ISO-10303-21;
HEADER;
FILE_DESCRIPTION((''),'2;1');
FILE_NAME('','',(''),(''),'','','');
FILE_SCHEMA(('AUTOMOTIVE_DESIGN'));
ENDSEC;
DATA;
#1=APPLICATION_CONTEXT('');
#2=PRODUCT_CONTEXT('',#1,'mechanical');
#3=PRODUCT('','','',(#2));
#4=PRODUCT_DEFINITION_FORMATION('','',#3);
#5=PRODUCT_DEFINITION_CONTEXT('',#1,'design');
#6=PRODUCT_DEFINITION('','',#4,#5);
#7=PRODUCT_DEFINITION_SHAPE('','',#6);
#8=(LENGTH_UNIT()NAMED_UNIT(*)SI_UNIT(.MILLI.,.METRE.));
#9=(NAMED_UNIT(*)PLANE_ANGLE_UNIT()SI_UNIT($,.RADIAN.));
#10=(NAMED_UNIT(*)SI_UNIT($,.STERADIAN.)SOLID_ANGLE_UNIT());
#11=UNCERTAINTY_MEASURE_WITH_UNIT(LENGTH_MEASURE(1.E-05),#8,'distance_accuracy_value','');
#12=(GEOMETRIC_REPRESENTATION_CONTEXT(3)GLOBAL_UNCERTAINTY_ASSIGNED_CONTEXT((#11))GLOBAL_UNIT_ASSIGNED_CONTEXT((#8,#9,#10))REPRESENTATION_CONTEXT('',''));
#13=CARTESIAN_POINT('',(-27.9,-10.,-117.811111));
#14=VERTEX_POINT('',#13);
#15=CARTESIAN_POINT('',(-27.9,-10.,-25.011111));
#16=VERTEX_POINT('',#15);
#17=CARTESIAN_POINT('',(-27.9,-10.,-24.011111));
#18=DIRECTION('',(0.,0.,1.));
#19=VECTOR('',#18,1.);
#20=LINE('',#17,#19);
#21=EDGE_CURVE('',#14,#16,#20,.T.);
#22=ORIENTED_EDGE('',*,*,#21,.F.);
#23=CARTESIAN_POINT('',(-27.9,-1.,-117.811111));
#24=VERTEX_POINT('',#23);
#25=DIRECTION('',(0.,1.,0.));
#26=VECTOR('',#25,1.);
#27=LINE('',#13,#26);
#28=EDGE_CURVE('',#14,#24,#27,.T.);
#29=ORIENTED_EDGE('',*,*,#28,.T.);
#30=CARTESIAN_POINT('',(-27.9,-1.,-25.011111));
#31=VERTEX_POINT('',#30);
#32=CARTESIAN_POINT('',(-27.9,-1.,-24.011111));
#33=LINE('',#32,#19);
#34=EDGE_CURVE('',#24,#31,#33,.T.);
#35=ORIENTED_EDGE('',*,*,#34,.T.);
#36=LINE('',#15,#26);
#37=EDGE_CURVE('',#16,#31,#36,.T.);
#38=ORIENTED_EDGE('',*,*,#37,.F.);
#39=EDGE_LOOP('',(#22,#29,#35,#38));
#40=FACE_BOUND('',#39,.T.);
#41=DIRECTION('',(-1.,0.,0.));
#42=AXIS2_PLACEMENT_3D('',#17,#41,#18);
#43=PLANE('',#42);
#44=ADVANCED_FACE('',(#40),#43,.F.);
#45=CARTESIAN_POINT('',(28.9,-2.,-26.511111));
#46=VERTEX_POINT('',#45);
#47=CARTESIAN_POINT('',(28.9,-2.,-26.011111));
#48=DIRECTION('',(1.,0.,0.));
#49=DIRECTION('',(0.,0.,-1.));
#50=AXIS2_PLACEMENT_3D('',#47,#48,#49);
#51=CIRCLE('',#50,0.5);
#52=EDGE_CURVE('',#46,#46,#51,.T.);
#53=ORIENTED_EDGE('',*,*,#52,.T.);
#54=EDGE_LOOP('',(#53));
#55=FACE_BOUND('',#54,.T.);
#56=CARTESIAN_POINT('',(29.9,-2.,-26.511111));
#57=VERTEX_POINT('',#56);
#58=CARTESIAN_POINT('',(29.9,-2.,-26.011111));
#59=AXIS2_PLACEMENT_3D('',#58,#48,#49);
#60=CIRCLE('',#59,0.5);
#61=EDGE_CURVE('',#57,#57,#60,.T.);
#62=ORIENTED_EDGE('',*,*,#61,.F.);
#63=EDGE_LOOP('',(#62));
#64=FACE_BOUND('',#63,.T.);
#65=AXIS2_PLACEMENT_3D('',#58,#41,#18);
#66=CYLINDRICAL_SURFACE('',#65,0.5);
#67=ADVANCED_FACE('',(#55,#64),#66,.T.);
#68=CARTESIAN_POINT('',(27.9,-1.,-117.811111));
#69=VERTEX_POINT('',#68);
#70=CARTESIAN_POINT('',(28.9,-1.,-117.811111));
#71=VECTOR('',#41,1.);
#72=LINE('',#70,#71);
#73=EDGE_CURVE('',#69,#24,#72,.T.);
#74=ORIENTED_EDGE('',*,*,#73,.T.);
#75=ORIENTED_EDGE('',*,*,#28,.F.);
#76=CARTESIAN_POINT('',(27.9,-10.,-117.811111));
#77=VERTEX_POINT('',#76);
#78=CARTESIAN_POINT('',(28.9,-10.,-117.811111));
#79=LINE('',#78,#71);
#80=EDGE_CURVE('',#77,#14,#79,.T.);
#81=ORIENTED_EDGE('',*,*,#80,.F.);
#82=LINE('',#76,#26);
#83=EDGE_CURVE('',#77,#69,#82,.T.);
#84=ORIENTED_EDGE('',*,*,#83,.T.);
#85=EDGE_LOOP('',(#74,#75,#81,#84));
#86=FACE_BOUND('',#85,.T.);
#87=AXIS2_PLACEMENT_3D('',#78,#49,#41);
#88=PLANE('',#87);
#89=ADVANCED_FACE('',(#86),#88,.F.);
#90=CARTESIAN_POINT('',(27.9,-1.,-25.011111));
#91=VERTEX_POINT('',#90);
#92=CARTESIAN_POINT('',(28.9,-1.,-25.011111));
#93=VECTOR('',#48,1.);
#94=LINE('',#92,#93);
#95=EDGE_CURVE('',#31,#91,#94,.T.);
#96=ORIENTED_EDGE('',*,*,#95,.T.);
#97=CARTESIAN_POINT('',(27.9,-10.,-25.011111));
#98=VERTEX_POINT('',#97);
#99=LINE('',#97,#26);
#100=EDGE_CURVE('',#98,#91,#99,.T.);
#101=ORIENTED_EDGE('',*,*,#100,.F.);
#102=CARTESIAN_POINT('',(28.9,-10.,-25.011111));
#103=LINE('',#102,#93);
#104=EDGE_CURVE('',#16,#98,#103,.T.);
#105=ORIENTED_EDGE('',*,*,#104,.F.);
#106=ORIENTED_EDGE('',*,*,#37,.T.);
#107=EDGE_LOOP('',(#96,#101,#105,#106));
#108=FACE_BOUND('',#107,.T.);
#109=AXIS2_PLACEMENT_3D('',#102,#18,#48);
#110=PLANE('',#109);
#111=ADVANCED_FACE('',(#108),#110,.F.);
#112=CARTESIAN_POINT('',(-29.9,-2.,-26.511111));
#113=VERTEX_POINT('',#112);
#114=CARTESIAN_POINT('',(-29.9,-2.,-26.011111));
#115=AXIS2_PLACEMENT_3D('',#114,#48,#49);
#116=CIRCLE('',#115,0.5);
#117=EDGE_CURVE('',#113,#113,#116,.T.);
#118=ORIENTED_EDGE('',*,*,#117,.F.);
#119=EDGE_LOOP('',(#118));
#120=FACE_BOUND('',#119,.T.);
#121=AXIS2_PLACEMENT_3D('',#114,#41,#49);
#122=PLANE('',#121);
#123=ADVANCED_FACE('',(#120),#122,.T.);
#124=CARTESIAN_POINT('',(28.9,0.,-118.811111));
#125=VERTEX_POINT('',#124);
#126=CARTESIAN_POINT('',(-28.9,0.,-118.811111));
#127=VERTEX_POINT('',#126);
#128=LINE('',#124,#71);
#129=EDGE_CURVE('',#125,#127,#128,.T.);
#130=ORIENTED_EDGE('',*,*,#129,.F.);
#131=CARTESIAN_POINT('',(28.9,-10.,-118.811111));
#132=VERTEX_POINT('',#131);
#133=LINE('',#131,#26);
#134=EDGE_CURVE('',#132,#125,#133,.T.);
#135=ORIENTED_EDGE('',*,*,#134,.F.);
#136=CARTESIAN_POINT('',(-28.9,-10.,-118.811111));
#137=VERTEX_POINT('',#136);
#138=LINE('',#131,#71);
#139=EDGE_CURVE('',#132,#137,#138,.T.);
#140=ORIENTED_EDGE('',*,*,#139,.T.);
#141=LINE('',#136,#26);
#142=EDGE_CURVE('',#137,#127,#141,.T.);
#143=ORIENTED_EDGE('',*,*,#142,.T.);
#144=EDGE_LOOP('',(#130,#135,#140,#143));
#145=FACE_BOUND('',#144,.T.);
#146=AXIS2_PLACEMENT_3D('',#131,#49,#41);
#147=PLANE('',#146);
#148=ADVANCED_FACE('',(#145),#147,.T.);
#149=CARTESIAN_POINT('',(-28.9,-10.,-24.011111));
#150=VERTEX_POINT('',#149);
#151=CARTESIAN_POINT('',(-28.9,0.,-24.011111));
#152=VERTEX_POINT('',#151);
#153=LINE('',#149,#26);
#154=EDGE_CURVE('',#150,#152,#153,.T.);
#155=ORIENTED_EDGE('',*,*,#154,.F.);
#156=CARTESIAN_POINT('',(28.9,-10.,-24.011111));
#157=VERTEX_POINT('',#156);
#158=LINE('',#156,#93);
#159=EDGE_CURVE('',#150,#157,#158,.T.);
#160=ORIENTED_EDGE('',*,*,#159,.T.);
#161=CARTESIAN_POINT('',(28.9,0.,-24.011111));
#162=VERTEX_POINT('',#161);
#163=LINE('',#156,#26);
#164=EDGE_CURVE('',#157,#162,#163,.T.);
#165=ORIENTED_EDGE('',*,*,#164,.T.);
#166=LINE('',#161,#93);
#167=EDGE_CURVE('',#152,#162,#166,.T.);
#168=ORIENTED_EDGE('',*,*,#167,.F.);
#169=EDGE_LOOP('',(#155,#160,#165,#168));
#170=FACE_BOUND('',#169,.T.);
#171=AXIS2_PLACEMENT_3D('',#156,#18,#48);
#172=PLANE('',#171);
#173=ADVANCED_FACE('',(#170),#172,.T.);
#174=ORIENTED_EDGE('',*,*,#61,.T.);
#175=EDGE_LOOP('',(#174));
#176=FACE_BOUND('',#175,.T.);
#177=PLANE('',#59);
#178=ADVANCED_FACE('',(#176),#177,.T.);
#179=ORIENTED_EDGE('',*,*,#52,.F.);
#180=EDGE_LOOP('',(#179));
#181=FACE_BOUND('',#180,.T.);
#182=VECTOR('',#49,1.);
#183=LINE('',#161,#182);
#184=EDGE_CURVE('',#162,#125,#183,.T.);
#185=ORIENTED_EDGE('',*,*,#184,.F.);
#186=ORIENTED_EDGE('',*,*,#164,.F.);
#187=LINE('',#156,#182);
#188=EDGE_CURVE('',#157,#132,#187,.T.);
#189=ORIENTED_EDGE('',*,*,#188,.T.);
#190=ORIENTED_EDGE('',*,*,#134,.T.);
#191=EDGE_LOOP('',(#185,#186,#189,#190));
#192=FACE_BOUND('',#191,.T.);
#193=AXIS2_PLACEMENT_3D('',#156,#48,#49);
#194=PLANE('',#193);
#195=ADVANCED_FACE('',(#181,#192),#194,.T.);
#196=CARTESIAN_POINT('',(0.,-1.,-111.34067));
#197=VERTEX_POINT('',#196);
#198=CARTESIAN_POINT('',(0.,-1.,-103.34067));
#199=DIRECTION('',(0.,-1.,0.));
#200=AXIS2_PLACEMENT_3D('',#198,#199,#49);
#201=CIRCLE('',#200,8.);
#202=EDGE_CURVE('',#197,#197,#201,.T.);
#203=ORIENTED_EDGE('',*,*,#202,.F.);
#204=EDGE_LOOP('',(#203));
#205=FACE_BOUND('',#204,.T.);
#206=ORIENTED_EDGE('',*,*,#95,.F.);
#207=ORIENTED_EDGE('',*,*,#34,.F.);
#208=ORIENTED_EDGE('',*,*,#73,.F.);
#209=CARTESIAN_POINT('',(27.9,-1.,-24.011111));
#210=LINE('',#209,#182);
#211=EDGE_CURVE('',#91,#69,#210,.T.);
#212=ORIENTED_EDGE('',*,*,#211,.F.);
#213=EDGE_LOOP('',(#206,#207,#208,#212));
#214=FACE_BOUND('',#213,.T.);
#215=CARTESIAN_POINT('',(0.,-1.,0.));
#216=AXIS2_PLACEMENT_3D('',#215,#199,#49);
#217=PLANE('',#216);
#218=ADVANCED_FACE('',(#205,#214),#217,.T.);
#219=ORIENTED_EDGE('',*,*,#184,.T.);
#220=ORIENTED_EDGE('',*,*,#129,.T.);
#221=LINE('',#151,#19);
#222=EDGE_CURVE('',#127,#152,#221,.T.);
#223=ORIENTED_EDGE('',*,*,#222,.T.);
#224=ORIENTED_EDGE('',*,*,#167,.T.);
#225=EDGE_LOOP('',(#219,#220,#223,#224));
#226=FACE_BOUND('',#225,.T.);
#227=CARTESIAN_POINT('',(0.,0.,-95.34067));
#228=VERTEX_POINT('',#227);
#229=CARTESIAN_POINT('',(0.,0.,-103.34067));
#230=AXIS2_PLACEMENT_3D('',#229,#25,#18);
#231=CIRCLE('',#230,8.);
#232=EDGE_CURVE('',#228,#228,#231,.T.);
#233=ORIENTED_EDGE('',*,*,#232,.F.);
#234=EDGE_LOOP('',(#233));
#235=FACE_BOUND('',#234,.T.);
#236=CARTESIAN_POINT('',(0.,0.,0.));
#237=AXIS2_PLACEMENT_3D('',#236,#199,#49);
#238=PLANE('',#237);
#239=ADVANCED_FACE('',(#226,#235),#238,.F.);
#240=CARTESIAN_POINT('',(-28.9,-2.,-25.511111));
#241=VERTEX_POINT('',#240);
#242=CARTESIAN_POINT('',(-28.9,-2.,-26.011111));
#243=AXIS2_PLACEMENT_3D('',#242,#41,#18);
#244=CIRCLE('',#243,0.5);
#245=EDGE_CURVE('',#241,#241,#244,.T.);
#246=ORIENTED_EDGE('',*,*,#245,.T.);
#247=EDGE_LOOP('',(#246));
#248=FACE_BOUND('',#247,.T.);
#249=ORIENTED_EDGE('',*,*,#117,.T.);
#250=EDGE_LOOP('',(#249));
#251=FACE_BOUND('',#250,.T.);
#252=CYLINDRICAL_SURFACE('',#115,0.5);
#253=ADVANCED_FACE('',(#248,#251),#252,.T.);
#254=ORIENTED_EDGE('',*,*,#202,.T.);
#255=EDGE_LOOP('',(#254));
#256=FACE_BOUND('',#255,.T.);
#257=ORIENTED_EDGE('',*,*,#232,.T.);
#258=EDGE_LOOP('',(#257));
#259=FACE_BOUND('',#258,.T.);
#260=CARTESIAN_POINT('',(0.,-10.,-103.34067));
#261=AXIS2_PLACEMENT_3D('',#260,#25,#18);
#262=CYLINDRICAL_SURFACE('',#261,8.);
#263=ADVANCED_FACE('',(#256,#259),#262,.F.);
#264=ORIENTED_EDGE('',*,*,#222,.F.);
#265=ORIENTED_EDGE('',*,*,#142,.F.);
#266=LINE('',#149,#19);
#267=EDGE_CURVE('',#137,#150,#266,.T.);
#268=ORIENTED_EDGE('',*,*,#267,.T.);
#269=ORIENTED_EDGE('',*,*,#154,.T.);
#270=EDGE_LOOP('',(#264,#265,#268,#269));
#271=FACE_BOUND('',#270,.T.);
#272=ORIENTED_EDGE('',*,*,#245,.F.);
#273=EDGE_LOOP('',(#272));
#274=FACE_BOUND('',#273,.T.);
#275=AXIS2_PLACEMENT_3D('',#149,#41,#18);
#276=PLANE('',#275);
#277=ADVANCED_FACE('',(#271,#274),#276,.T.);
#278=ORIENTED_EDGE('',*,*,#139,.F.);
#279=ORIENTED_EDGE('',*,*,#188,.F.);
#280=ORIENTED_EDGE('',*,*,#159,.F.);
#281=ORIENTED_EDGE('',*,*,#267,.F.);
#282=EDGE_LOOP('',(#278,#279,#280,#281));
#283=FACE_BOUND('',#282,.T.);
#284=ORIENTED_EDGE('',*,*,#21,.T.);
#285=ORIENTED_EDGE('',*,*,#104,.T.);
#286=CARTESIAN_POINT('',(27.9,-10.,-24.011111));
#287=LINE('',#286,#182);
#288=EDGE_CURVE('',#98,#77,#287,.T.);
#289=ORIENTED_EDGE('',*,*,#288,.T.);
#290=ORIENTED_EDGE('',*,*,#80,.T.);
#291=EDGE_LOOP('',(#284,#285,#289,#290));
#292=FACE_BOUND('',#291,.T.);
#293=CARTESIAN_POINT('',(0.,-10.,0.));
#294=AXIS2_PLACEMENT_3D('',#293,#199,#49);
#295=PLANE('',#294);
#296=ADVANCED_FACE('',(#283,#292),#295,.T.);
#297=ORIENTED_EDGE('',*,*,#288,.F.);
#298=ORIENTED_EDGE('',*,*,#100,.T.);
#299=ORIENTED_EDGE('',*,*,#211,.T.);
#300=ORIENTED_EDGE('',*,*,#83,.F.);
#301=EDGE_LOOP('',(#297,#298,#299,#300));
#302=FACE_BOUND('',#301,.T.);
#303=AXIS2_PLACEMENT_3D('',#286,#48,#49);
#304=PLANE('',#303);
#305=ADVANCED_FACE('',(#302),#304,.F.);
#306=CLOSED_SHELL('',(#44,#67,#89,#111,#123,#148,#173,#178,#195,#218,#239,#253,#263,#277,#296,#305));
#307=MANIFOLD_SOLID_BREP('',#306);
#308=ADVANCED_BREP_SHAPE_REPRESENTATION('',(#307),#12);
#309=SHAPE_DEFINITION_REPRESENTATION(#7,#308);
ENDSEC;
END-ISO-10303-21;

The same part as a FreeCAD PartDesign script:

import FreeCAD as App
import Part
import Sketcher
from FreeCAD import Vector
Q = App.Units.Quantity


def faces_at(feature, points):
    """Names of the faces that lie closest to the given points."""
    faces = feature.Shape.Faces
    near = lambda p: min(range(len(faces)), key=lambda i: faces[i].distToShape(Part.Vertex(*p))[0])
    return sorted({f"Face{near(p) + 1}" for p in points})

doc = App.newDocument("Part")
params = doc.addObject("Spreadsheet::Sheet", "Params")
for row, (alias, value) in enumerate([
    ("sketch1_width", "57.8 mm"),
    ("sketch1_height", "94.8 mm"),
    ("pad1_length", "10 mm"),
    ("thickness_wall", "1 mm"),
    ("sketch2_diameter", "16 mm"),
    ("sketch3_diameter", "1 mm"),
    ("pad2_length", "1 mm"),
], start=1):
    params.set(f"A{row}", alias)
    params.set(f"B{row}", "=" + value)
    params.setAlias(f"B{row}", alias)

body = doc.addObject("PartDesign::Body", "Body")

sketch1 = doc.addObject("Sketcher::SketchObject", "Sketch")
body.addObject(sketch1)
sketch1.AttachmentSupport = (doc.XZ_Plane, [""])
sketch1.MapMode = "FlatFace"
sketch1.addGeometry(Part.LineSegment(Vector(-29, -119, 0), Vector(-29, -24, 0)), False)
sketch1.addGeometry(Part.LineSegment(Vector(-29, -24, 0), Vector(29, -24, 0)), False)
sketch1.addGeometry(Part.LineSegment(Vector(29, -24, 0), Vector(29, -119, 0)), False)
sketch1.addGeometry(Part.LineSegment(Vector(29, -119, 0), Vector(-29, -119, 0)), False)
sketch1.addConstraint(Sketcher.Constraint("Coincident", 0, 2, 1, 1))
sketch1.addConstraint(Sketcher.Constraint("Coincident", 1, 2, 2, 1))
sketch1.addConstraint(Sketcher.Constraint("Coincident", 2, 2, 3, 1))
sketch1.addConstraint(Sketcher.Constraint("Coincident", 3, 2, 0, 1))
sketch1.addConstraint(Sketcher.Constraint("Vertical", 0))
sketch1.addConstraint(Sketcher.Constraint("Horizontal", 1))
sketch1.addConstraint(Sketcher.Constraint("Vertical", 2))
sketch1.addConstraint(Sketcher.Constraint("Horizontal", 3))
sketch1.addConstraint(Sketcher.Constraint("DistanceX", 1, 1, 1, 2, Q("57.8 mm")))
sketch1.addConstraint(Sketcher.Constraint("DistanceY", 0, 1, 0, 2, Q("94.8 mm")))
sketch1.addConstraint(Sketcher.Constraint("DistanceX", 0, 2, -1, 1, Q("28.9 mm")))
sketch1.addConstraint(Sketcher.Constraint("DistanceY", 0, 2, -1, 1, Q("24.011111 mm")))
sketch1.setExpression("Constraints[8]", "Params.sketch1_width")
sketch1.setExpression("Constraints[9]", "Params.sketch1_height")
pad1 = doc.addObject("PartDesign::Pad", "Pad")
body.addObject(pad1)
pad1.Profile = sketch1
pad1.setExpression("Length", "Params.pad1_length")
doc.recompute()

thickness = doc.addObject("PartDesign::Thickness", "Thickness")
body.addObject(thickness)
thickness.Base = (pad1, faces_at(pad1, [(0, -10, -71.411)]))
thickness.setExpression("Value", "Params.thickness_wall")
thickness.Reversed = True
thickness.Join = "Intersection"

sketch2 = doc.addObject("Sketcher::SketchObject", "Sketch001")
body.addObject(sketch2)
sketch2.AttachmentSupport = (doc.XZ_Plane, [""])
sketch2.MapMode = "FlatFace"
sketch2.addGeometry(Part.Circle(Vector(0, -103, 0), Vector(0, 0, 1), 8), False)
sketch2.addConstraint(Sketcher.Constraint("PointOnObject", 0, 3, -2))
sketch2.addConstraint(Sketcher.Constraint("Diameter", 0, Q("16 mm")))
sketch2.addConstraint(Sketcher.Constraint("DistanceY", 0, 3, -1, 1, Q("103.34067 mm")))
sketch2.setExpression("Constraints[1]", "Params.sketch2_diameter")
pocket1 = doc.addObject("PartDesign::Pocket", "Pocket")
body.addObject(pocket1)
pocket1.Profile = sketch2
pocket1.Type = "ThroughAll"
pocket1.Reversed = True

sketch3 = doc.addObject("Sketcher::SketchObject", "Sketch002")
body.addObject(sketch3)
sketch3.AttachmentSupport = (doc.YZ_Plane, [""])
sketch3.MapMode = "FlatFace"
sketch3.AttachmentOffset = App.Placement(Vector(0, 0, 28.9), App.Rotation())
sketch3.addGeometry(Part.Circle(Vector(-2, -26, 0), Vector(0, 0, 1), 0.5), False)
sketch3.addConstraint(Sketcher.Constraint("Diameter", 0, Q("1 mm")))
sketch3.addConstraint(Sketcher.Constraint("DistanceX", 0, 3, -1, 1, Q("2 mm")))
sketch3.addConstraint(Sketcher.Constraint("DistanceY", 0, 3, -1, 1, Q("26.011111 mm")))
sketch3.setExpression("Constraints[0]", "Params.sketch3_diameter")
pad2 = doc.addObject("PartDesign::Pad", "Pad001")
body.addObject(pad2)
pad2.Profile = sketch3
pad2.setExpression("Length", "Params.pad2_length")
doc.recompute()

mirrored = doc.addObject("PartDesign::Mirrored", "Mirrored")
body.addObject(mirrored)
mirrored.Originals = [pad2]
mirrored.MirrorPlane = (doc.YZ_Plane, [""])
body.Tip = mirrored

doc.recompute()
